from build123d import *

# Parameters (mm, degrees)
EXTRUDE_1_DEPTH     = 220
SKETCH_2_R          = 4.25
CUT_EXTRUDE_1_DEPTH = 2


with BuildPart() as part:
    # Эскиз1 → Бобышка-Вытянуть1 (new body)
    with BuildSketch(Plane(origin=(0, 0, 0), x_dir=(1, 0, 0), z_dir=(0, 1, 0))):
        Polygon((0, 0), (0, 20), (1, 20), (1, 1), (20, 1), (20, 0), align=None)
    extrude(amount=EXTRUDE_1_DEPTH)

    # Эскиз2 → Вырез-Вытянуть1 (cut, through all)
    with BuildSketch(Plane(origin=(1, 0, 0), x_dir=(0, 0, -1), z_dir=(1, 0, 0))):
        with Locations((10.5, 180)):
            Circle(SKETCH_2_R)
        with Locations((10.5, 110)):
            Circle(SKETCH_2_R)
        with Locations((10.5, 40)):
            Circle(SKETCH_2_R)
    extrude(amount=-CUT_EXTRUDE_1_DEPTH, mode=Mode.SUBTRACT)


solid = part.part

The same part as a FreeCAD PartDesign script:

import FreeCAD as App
import Part
import Sketcher
from FreeCAD import Vector
Q = App.Units.Quantity


def add_polygon(sketch, points):
    """Adds a closed chain of lines whose ends are joined by coincident constraints."""
    first, n = sketch.GeometryCount, len(points)
    for a, b in zip(points, points[1:] + points[:1]):
        sketch.addGeometry(Part.LineSegment(App.Vector(*a, 0), App.Vector(*b, 0)), False)
    for i in range(n):
        sketch.addConstraint(Sketcher.Constraint("Coincident", first + i, 2, first + (i + 1) % n, 1))

doc = App.newDocument("Part")
body = doc.addObject("PartDesign::Body", "Body")

sketch1 = doc.addObject("Sketcher::SketchObject", "Sketch")
body.addObject(sketch1)
sketch1.AttachmentSupport = (doc.XZ_Plane, [""])
sketch1.MapMode = "FlatFace"
add_polygon(sketch1, [(0, -20), (0, 0), (20, 0), (20, -1), (1, -1), (1, -20)])
sketch1.addConstraint(Sketcher.Constraint("Vertical", 0))
sketch1.addConstraint(Sketcher.Constraint("Horizontal", 1))
sketch1.addConstraint(Sketcher.Constraint("Vertical", 2))
sketch1.addConstraint(Sketcher.Constraint("Horizontal", 3))
sketch1.addConstraint(Sketcher.Constraint("Vertical", 4))
sketch1.addConstraint(Sketcher.Constraint("Horizontal", 5))
sketch1.addConstraint(Sketcher.Constraint("Coincident", 0, 2, -1, 1))
sketch1.addConstraint(Sketcher.Constraint("Equal", 1, 0))
sketch1.addConstraint(Sketcher.Constraint("Equal", 5, 2))
sketch1.addConstraint(Sketcher.Constraint("DistanceX", 1, 1, 1, 2, Q("20 mm")))
sketch1.addConstraint(Sketcher.Constraint("DistanceX", 3, 2, 3, 1, Q("19 mm")))
pad1 = doc.addObject("PartDesign::Pad", "Pad")
body.addObject(pad1)
pad1.Profile = sketch1
pad1.Length = 220
pad1.Reversed = True

sketch2 = doc.addObject("Sketcher::SketchObject", "Sketch001")
body.addObject(sketch2)
sketch2.AttachmentSupport = (doc.YZ_Plane, [""])
sketch2.MapMode = "FlatFace"
sketch2.AttachmentOffset = App.Placement(Vector(0, 0, 1), App.Rotation())
sketch2.addGeometry(Part.Circle(Vector(180, -10.5, 0), Vector(0, 0, 1), 4.25), False)
sketch2.addGeometry(Part.Circle(Vector(110, -10.5, 0), Vector(0, 0, 1), 4.25), False)
sketch2.addGeometry(Part.Circle(Vector(40, -10.5, 0), Vector(0, 0, 1), 4.25), False)
sketch2.addConstraint(Sketcher.Constraint("Equal", 0, 1))
sketch2.addConstraint(Sketcher.Constraint("Equal", 1, 2))
sketch2.addConstraint(Sketcher.Constraint("Horizontal", 0, 3, 1, 3))
sketch2.addConstraint(Sketcher.Constraint("Horizontal", 1, 3, 2, 3))
sketch2.addConstraint(Sketcher.Constraint("Diameter", 0, Q("8.5 mm")))
sketch2.addConstraint(Sketcher.Constraint("DistanceX", -1, 1, 0, 3, Q("180 mm")))
sketch2.addConstraint(Sketcher.Constraint("DistanceX", -1, 1, 1, 3, Q("110 mm")))
sketch2.addConstraint(Sketcher.Constraint("DistanceX", -1, 1, 2, 3, Q("40 mm")))
sketch2.addConstraint(Sketcher.Constraint("DistanceY", 0, 3, -1, 1, Q("10.5 mm")))
pocket1 = doc.addObject("PartDesign::Pocket", "Pocket")
body.addObject(pocket1)
pocket1.Profile = sketch2
pocket1.Type = "ThroughAll"

doc.recompute()
